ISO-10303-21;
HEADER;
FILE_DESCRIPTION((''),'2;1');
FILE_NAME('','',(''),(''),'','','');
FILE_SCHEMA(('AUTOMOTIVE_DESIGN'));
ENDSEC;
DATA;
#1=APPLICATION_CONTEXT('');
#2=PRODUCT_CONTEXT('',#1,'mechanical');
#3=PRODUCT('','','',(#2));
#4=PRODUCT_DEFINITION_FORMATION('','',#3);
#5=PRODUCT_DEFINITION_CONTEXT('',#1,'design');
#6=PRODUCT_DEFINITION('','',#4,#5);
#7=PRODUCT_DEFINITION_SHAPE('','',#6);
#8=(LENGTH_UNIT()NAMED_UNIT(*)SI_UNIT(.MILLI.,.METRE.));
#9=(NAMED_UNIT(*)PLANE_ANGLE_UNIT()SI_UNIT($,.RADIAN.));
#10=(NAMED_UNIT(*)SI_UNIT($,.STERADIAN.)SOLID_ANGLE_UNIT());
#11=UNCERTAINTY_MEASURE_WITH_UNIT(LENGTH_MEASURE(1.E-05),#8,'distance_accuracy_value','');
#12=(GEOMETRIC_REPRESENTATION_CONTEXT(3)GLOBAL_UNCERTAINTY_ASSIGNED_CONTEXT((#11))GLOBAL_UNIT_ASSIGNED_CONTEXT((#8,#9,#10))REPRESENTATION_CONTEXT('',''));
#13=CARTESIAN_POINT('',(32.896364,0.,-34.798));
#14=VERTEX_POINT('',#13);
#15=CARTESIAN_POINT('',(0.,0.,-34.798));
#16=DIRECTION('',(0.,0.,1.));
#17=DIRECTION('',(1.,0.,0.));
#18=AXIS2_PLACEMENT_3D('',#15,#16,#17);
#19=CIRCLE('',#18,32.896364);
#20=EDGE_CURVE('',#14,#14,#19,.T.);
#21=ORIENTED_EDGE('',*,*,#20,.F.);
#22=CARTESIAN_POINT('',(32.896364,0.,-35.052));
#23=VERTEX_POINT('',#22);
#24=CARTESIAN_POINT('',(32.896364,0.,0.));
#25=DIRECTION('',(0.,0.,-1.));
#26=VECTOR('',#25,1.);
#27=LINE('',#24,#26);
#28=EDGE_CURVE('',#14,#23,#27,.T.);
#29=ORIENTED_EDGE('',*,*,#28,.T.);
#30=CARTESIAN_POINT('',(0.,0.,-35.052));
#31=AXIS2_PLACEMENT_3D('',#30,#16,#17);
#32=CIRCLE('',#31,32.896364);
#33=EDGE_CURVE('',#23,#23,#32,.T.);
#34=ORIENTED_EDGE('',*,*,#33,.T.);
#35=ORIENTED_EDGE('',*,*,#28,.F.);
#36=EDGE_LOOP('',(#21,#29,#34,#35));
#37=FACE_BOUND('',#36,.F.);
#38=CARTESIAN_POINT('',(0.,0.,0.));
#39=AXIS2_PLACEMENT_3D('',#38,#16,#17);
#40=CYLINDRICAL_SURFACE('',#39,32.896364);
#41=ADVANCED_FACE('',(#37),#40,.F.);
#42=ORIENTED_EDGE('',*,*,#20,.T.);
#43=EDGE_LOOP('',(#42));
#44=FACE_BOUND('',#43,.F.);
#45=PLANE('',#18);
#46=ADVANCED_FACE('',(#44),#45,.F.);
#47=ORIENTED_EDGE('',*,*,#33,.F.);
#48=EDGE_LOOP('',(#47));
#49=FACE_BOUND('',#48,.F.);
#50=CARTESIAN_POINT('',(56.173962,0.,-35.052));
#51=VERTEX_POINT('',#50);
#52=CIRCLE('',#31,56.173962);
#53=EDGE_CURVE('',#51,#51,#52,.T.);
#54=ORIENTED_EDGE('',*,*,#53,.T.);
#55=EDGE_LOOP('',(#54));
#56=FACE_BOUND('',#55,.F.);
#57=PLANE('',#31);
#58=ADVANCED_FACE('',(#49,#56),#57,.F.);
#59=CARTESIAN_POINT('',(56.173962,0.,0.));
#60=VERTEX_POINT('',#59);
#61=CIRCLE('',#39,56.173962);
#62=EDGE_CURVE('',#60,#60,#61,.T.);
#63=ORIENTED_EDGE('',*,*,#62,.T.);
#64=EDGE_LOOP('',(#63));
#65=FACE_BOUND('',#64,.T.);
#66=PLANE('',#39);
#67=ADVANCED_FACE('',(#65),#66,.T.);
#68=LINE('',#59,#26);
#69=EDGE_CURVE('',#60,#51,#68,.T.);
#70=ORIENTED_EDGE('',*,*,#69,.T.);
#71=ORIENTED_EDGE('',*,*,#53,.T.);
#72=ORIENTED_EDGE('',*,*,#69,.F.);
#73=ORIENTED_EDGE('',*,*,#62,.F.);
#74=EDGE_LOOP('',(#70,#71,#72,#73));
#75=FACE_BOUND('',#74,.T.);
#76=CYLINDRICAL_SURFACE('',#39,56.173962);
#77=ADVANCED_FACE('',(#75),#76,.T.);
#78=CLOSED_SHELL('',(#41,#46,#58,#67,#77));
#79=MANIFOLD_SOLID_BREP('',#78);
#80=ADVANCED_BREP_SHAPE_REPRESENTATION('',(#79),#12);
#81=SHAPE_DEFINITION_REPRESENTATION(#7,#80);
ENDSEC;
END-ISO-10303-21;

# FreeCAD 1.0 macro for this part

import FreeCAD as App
import Part
import Sketcher

V = App.Vector
Q = App.Units.Quantity


def add_polygon(sketch, points):
    """Adds a closed chain of lines whose ends are joined by coincident constraints."""
    first, n = sketch.GeometryCount, len(points)
    for a, b in zip(points, points[1:] + points[:1]):
        sketch.addGeometry(Part.LineSegment(App.Vector(*a, 0), App.Vector(*b, 0)), False)
    for i in range(n):
        sketch.addConstraint(Sketcher.Constraint("Coincident", first + i, 2, first + (i + 1) % n, 1))

doc = App.newDocument("Part")
body = doc.addObject("PartDesign::Body", "Body")

# Sketch on XY plane
sketch1 = body.newObject("Sketcher::SketchObject", "Sketch")
sketch1.AttachmentSupport = (doc.getObject("XY_Plane"), [""])
sketch1.MapMode = "FlatFace"
sketch1.addGeometry(Part.Circle(V(0, 0, 0), V(0, 0, 1), 56), False)
sketch1.addGeometry(Part.Circle(V(0, 0, 0), V(0, 0, 1), 33), False)
sketch1.addConstraint(Sketcher.Constraint("Coincident", 0, 3, -1, 1))
sketch1.addConstraint(Sketcher.Constraint("Coincident", 1, 3, -1, 1))
sketch1.addConstraint(Sketcher.Constraint("Diameter", 0, Q("112.347924 mm")))
sketch1.addConstraint(Sketcher.Constraint("Diameter", 1, Q("65.792728 mm")))
pad1 = body.newObject("PartDesign::Pad", "Pad")
pad1.Profile = sketch1
pad1.Length = Q("1.38 in")
pad1.Reversed = True

# Sketch on XY plane
sketch2 = body.newObject("Sketcher::SketchObject", "Sketch001")
sketch2.AttachmentSupport = (doc.getObject("XY_Plane"), [""])
sketch2.MapMode = "FlatFace"
sketch2.addGeometry(Part.Circle(V(0, 0, 0), V(0, 0, 1), 33), False)  # 0
add_polygon(sketch2, [(-1, 29), (24, 16), (25, -13), (1, -29), (-24, -16), (-25, 13)])  # lines 1-6
sketch2.addConstraint(Sketcher.Constraint("Coincident", 0, 3, -1, 1))
sketch2.addConstraint(Sketcher.Constraint("Symmetric", 1, 2, 4, 2, -1, 1))
sketch2.addConstraint(Sketcher.Constraint("Symmetric", 2, 2, 5, 2, -1, 1))
sketch2.addConstraint(Sketcher.Constraint("Symmetric", 3, 2, 6, 2, -1, 1))
sketch2.addConstraint(Sketcher.Constraint("Equal", 1, 2))
sketch2.addConstraint(Sketcher.Constraint("Equal", 2, 3))
sketch2.addConstraint(Sketcher.Constraint("Diameter", 0, Q("65.792728 mm")))
sketch2.addConstraint(Sketcher.Constraint("DistanceX", -1, 1, 2, 2, Q("25.474891 mm")))
sketch2.addConstraint(Sketcher.Constraint("DistanceY", 3, 2, -1, 1, Q("28.61241 mm")))
sketch2.addConstraint(Sketcher.Constraint("DistanceY", 2, 2, 1, 2, Q("28.61241 mm")))
sketch2.addConstraint(Sketcher.Constraint("DistanceX", 4, 2, 3, 2, Q("25.474891 mm")))
pad2 = body.newObject("PartDesign::Pad", "Pad001")
pad2.Profile = sketch2
pad2.Length = Q("1.37 in")
pad2.Reversed = True

# Sketch on XY plane
sketch3 = body.newObject("Sketcher::SketchObject", "Sketch002")
sketch3.AttachmentSupport = (doc.getObject("XY_Plane"), [""])
sketch3.MapMode = "FlatFace"
add_polygon(sketch3, [(1, -29), (25, -13), (24, 16), (-1, 29), (-25, 13), (-24, -16)])  # lines 0-5
sketch3.addConstraint(Sketcher.Constraint("Symmetric", 0, 2, 3, 2, -1, 1))
sketch3.addConstraint(Sketcher.Constraint("Symmetric", 1, 2, 4, 2, -1, 1))
sketch3.addConstraint(Sketcher.Constraint("Symmetric", 2, 2, 5, 2, -1, 1))
sketch3.addConstraint(Sketcher.Constraint("Equal", 0, 1))
sketch3.addConstraint(Sketcher.Constraint("Equal", 1, 2))
sketch3.addConstraint(Sketcher.Constraint("DistanceX", -1, 1, 0, 2, Q("25.474891 mm")))
sketch3.addConstraint(Sketcher.Constraint("DistanceY", -1, 1, 2, 2, Q("28.61241 mm")))
sketch3.addConstraint(Sketcher.Constraint("DistanceY", 0, 2, 1, 2, Q("28.61241 mm")))
sketch3.addConstraint(Sketcher.Constraint("DistanceX", 2, 2, 1, 2, Q("25.474891 mm")))
pad3 = body.newObject("PartDesign::Pad", "Pad002")
pad3.Profile = sketch3
pad3.Length = Q("1.37 in")
pad3.Reversed = True

doc.recompute()
